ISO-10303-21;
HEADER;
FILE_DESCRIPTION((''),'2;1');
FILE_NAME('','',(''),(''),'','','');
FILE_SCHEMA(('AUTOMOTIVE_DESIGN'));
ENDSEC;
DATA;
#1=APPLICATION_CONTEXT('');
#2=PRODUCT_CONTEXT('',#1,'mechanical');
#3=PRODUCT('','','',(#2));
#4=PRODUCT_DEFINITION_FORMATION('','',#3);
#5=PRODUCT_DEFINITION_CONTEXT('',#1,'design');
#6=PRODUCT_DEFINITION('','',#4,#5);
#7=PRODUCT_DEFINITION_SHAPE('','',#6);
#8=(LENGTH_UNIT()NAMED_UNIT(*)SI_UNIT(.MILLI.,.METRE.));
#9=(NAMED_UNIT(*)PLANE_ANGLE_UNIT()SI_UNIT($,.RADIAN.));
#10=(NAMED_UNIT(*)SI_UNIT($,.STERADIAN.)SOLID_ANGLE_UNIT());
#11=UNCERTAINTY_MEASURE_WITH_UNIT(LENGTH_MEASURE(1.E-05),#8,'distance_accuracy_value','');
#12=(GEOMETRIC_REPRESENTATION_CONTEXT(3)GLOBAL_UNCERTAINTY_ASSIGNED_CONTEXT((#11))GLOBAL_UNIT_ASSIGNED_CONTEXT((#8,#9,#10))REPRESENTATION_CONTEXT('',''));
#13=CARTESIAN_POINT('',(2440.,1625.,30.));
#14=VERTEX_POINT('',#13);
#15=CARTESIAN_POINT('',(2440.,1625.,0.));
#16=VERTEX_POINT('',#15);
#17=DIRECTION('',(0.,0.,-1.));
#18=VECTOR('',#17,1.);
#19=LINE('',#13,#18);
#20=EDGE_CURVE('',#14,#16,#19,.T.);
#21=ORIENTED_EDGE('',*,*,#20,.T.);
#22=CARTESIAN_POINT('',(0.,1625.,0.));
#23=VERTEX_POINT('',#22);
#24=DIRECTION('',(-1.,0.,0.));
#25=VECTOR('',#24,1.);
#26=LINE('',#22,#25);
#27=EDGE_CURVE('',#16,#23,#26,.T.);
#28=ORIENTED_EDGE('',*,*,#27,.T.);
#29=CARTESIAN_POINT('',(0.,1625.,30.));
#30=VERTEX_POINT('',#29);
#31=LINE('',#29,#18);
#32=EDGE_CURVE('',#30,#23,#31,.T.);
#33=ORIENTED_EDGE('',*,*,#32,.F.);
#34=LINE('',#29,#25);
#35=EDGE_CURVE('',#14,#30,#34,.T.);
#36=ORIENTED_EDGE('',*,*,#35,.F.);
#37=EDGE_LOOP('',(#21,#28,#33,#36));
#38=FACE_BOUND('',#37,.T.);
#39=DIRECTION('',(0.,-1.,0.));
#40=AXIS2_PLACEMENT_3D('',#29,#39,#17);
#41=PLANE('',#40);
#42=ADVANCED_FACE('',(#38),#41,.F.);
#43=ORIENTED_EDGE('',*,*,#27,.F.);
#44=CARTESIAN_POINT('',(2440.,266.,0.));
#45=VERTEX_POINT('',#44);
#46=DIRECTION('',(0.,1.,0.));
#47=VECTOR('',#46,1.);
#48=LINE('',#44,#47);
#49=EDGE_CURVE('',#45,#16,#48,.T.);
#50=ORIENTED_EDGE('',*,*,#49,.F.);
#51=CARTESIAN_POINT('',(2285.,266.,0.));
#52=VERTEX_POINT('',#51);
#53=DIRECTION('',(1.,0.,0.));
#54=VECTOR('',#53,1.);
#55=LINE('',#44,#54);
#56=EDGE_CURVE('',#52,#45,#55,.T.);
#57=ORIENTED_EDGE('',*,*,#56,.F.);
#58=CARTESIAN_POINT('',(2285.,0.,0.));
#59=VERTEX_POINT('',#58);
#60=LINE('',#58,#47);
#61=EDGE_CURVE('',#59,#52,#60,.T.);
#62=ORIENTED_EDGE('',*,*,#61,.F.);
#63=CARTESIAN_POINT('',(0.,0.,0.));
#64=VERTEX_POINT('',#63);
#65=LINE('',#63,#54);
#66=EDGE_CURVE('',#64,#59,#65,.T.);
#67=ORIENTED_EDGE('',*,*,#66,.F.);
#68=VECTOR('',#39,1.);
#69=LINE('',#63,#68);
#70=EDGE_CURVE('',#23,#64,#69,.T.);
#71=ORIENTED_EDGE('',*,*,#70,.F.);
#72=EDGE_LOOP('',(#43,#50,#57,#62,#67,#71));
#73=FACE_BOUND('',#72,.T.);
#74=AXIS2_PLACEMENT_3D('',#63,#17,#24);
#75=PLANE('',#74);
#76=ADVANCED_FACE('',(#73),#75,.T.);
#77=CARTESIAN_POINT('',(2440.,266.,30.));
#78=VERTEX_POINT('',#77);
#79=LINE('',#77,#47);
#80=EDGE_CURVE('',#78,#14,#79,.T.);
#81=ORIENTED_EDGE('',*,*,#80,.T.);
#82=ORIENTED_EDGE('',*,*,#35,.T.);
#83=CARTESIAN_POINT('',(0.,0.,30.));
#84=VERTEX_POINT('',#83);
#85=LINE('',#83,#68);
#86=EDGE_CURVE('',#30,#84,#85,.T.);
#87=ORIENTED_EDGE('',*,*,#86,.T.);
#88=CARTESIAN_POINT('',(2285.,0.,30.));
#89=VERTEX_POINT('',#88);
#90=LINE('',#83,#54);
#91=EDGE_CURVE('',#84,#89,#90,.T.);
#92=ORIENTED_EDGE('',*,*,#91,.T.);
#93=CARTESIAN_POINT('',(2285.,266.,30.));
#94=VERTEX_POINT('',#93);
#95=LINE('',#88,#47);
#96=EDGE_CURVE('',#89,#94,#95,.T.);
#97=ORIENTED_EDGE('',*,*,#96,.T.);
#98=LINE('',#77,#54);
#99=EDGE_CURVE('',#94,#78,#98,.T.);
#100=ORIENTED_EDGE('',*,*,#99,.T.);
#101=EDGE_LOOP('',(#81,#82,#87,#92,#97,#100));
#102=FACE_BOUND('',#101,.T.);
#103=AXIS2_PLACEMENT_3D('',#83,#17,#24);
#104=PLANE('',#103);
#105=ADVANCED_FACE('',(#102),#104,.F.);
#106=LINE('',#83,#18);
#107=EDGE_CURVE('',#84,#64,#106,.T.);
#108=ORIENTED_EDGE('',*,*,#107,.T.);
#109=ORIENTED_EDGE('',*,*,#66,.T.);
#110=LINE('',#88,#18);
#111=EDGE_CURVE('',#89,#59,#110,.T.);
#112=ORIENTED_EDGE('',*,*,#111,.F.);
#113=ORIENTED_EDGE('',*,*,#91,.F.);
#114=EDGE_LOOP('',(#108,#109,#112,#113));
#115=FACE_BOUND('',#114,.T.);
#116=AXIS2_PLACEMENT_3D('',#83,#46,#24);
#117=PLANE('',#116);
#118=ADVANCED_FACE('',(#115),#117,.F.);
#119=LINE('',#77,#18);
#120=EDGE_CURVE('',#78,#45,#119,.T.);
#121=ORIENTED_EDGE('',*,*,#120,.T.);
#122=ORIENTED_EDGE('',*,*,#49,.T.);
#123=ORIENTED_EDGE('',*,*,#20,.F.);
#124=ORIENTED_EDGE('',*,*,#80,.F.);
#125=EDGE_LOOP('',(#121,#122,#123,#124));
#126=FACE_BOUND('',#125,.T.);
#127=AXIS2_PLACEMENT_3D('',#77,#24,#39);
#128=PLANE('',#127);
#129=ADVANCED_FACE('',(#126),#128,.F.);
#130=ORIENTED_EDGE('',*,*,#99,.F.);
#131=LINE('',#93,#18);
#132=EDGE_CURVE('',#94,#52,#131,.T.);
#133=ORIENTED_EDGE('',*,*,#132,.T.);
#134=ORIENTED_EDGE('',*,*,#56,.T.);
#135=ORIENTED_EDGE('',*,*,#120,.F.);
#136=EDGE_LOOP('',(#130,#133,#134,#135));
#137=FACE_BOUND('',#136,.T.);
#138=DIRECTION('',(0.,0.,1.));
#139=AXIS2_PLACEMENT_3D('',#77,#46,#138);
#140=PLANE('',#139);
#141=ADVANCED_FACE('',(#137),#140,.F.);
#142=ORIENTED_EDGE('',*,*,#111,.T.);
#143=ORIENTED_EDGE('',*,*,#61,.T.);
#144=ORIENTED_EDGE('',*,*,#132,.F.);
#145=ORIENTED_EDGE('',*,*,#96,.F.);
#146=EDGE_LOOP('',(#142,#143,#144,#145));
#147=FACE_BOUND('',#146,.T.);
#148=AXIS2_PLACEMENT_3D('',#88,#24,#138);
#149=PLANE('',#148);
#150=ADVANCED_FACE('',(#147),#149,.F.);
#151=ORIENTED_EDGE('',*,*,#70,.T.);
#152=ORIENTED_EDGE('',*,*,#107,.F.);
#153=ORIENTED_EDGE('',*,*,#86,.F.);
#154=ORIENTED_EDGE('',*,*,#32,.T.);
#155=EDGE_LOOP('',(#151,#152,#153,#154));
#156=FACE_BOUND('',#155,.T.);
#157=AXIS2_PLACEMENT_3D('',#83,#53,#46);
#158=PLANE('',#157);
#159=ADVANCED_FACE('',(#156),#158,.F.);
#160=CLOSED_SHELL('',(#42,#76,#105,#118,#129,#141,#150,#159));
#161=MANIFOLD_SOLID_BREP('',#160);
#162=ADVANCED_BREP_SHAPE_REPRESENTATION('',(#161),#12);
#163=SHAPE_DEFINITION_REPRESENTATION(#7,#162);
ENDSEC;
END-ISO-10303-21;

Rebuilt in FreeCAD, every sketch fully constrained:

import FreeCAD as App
import Part
import Sketcher

V = App.Vector
Q = App.Units.Quantity

doc = App.newDocument("Part")
params = doc.addObject("Spreadsheet::Sheet", "Params")
for row, (alias, value) in enumerate([
    ("sketch1_width", "2285 mm"),
    ("sketch1_width2", "155 mm"),
    ("sketch1_height", "266 mm"),
    ("sketch1_height2", "1359 mm"),
    ("pad1_length", "30 mm"),
], start=1):
    params.set(f"A{row}", alias)
    params.set(f"B{row}", "=" + value)
    params.setAlias(f"B{row}", alias)

body = doc.addObject("PartDesign::Body", "Body")

# Sketch on XY plane
sketch1 = body.newObject("Sketcher::SketchObject", "Sketch")
sketch1.AttachmentSupport = (doc.getObject("XY_Plane"), [""])
sketch1.MapMode = "FlatFace"
sketch1.addGeometry(Part.LineSegment(V(0, 0, 0), V(2285, 0, 0)), False)
sketch1.addGeometry(Part.LineSegment(V(2285, 0, 0), V(2285, 266, 0)), False)
sketch1.addGeometry(Part.LineSegment(V(2285, 266, 0), V(2440, 266, 0)), False)
sketch1.addGeometry(Part.LineSegment(V(2440, 266, 0), V(2440, 1625, 0)), False)
sketch1.addGeometry(Part.LineSegment(V(2440, 1625, 0), V(0, 1625, 0)), False)
sketch1.addGeometry(Part.LineSegment(V(0, 1625, 0), V(0, 0, 0)), False)
sketch1.addConstraint(Sketcher.Constraint("Coincident", 0, 2, 1, 1))
sketch1.addConstraint(Sketcher.Constraint("Coincident", 1, 2, 2, 1))
sketch1.addConstraint(Sketcher.Constraint("Coincident", 2, 2, 3, 1))
sketch1.addConstraint(Sketcher.Constraint("Coincident", 3, 2, 4, 1))
sketch1.addConstraint(Sketcher.Constraint("Coincident", 4, 2, 5, 1))
sketch1.addConstraint(Sketcher.Constraint("Coincident", 5, 2, 0, 1))
sketch1.addConstraint(Sketcher.Constraint("Horizontal", 0))
sketch1.addConstraint(Sketcher.Constraint("Vertical", 1))
sketch1.addConstraint(Sketcher.Constraint("Horizontal", 2))
sketch1.addConstraint(Sketcher.Constraint("Vertical", 3))
sketch1.addConstraint(Sketcher.Constraint("Horizontal", 4))
sketch1.addConstraint(Sketcher.Constraint("Vertical", 5))
sketch1.addConstraint(Sketcher.Constraint("Coincident", 5, 2, -1, 1))
sketch1.addConstraint(Sketcher.Constraint("DistanceX", 0, 1, 0, 2, Q("2285 mm")))
sketch1.addConstraint(Sketcher.Constraint("DistanceX", 2, 1, 2, 2, Q("155 mm")))
sketch1.addConstraint(Sketcher.Constraint("DistanceY", 1, 1, 1, 2, Q("266 mm")))
sketch1.addConstraint(Sketcher.Constraint("DistanceY", 3, 1, 3, 2, Q("1359 mm")))
sketch1.setExpression("Constraints[13]", "Params.sketch1_width")
sketch1.setExpression("Constraints[14]", "Params.sketch1_width2")
sketch1.setExpression("Constraints[15]", "Params.sketch1_height")
sketch1.setExpression("Constraints[16]", "Params.sketch1_height2")
pad1 = body.newObject("PartDesign::Pad", "Pad")
pad1.Profile = sketch1
pad1.setExpression("Length", "Params.pad1_length")

doc.recompute()
